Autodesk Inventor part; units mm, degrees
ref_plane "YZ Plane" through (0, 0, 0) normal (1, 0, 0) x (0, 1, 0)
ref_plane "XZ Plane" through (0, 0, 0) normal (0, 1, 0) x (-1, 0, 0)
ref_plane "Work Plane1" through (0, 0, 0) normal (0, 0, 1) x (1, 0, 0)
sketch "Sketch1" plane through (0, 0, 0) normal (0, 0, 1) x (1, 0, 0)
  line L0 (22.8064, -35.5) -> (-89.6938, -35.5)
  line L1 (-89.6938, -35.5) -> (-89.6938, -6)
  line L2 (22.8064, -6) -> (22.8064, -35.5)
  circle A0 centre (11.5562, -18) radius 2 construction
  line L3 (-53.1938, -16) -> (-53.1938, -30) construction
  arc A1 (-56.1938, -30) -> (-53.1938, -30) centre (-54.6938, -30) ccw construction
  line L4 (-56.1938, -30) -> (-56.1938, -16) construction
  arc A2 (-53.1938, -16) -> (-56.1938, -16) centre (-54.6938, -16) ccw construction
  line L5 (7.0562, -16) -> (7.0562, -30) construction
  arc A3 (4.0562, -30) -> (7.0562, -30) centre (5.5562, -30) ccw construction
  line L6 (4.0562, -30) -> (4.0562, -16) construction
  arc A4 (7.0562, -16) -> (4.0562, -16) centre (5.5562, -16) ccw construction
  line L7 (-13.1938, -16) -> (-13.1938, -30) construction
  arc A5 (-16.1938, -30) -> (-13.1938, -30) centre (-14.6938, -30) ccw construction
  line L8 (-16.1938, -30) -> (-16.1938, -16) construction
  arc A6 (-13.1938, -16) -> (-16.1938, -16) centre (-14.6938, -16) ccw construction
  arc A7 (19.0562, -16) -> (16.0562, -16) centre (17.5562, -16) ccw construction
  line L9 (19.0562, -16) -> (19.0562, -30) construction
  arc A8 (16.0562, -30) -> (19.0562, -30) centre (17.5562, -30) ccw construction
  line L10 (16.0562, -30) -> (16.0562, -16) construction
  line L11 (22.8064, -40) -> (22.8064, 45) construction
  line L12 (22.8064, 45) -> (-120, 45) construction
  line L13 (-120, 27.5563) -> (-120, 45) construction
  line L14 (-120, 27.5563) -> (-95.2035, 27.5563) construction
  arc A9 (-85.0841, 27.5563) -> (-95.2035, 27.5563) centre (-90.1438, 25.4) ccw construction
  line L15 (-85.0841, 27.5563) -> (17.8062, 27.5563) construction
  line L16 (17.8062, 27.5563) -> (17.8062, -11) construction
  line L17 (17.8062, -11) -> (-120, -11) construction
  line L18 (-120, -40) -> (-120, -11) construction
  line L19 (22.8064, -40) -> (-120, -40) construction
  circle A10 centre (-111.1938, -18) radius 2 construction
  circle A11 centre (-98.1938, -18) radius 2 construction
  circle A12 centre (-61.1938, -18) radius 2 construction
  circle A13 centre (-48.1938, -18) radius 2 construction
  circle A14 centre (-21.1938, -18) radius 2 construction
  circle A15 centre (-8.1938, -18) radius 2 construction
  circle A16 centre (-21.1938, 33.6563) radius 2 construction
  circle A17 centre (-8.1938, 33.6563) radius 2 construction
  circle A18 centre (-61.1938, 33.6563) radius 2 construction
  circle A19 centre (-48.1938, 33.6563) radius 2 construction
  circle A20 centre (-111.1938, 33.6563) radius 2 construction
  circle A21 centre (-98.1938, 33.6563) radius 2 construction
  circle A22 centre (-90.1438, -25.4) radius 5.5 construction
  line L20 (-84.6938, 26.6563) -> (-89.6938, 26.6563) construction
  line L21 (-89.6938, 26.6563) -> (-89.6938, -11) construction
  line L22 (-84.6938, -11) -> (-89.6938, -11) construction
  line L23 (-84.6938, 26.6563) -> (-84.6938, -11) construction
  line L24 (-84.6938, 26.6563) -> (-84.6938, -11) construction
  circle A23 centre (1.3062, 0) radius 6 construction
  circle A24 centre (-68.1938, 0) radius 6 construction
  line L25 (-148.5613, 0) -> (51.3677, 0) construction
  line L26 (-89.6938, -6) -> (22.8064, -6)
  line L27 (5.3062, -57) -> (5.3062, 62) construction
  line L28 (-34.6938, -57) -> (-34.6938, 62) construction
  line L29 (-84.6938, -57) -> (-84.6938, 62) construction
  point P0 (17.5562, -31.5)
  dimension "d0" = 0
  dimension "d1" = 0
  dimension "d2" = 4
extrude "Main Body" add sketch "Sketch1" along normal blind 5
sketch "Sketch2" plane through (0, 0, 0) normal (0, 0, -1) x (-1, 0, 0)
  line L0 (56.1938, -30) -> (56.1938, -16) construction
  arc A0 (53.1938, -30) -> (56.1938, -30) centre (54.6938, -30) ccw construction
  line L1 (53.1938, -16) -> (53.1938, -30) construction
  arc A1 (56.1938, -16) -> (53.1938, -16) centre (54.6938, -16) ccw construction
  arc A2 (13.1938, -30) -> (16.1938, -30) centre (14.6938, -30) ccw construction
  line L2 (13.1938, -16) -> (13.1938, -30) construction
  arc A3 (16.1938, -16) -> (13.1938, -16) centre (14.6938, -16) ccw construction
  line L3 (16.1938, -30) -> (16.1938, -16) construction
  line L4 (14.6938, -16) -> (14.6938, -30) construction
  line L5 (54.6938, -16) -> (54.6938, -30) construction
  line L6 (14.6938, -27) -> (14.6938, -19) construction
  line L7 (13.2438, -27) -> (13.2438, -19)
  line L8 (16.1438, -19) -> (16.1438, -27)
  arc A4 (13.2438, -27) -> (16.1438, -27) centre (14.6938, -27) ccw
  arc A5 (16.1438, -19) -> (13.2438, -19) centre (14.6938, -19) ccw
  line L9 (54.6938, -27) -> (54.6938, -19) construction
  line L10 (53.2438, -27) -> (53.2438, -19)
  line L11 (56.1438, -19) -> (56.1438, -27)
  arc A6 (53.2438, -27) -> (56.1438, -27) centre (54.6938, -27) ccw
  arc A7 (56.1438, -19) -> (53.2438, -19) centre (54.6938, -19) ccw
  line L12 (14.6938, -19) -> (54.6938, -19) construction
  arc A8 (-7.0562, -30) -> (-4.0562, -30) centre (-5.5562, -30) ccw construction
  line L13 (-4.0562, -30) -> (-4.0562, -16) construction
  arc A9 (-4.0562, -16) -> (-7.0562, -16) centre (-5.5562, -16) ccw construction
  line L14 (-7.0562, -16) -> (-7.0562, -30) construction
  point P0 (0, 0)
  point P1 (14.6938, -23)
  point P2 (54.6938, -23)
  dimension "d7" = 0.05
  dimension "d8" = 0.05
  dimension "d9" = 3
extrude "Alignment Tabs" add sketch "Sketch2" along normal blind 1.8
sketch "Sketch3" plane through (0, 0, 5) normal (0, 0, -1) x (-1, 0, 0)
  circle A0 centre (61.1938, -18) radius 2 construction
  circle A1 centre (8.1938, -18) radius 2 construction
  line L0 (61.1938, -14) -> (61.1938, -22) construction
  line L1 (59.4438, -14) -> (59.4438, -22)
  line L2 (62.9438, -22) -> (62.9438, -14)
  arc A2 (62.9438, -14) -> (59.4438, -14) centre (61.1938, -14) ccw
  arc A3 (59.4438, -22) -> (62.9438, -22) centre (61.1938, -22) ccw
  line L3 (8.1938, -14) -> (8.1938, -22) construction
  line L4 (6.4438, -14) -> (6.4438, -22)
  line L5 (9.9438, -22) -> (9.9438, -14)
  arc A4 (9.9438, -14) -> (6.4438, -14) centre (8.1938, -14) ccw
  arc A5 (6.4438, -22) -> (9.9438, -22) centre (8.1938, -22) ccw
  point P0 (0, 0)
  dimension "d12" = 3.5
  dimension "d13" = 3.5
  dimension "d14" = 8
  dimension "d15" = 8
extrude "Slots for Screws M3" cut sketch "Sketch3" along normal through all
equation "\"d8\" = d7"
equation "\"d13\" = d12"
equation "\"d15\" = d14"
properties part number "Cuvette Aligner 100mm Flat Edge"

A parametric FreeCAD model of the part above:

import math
import FreeCAD as App
import Part
import Sketcher
from FreeCAD import Vector
Q = App.Units.Quantity

doc = App.newDocument("Part")
body = doc.addObject("PartDesign::Body", "Body")

sketch1 = doc.addObject("Sketcher::SketchObject", "Sketch")
body.addObject(sketch1)
sketch1.AttachmentSupport = (doc.XY_Plane, [""])
sketch1.MapMode = "FlatFace"
sketch1.addGeometry(Part.LineSegment(Vector(-89.6938, -35.5, 0), Vector(22.8064, -35.5, 0)), False)
sketch1.addGeometry(Part.LineSegment(Vector(22.8064, -35.5, 0), Vector(22.8064, -6, 0)), False)
sketch1.addGeometry(Part.LineSegment(Vector(22.8064, -6, 0), Vector(-89.6938, -6, 0)), False)
sketch1.addGeometry(Part.LineSegment(Vector(-89.6938, -6, 0), Vector(-89.6938, -35.5, 0)), False)
sketch1.addConstraint(Sketcher.Constraint("Coincident", 0, 2, 1, 1))
sketch1.addConstraint(Sketcher.Constraint("Coincident", 1, 2, 2, 1))
sketch1.addConstraint(Sketcher.Constraint("Coincident", 2, 2, 3, 1))
sketch1.addConstraint(Sketcher.Constraint("Coincident", 3, 2, 0, 1))
sketch1.addConstraint(Sketcher.Constraint("Horizontal", 0))
sketch1.addConstraint(Sketcher.Constraint("Vertical", 1))
sketch1.addConstraint(Sketcher.Constraint("Horizontal", 2))
sketch1.addConstraint(Sketcher.Constraint("Vertical", 3))
sketch1.addConstraint(Sketcher.Constraint("DistanceY", 1, 1, 1, 2, Q("29.5 mm")))
sketch1.addConstraint(Sketcher.Constraint("DistanceY", 1, 2, -1, 1, Q("6 mm")))
sketch1.addConstraint(Sketcher.Constraint("DistanceX", 0, 1, 0, 2, Q("112.5002 mm")))
sketch1.addConstraint(Sketcher.Constraint("DistanceX", -1, 1, 0, 2, Q("22.8064 mm")))
pad1 = doc.addObject("PartDesign::Pad", "Pad")
body.addObject(pad1)
pad1.Profile = sketch1
pad1.Length = 5

sketch2 = doc.addObject("Sketcher::SketchObject", "Sketch001")
body.addObject(sketch2)
sketch2.AttachmentSupport = (doc.XY_Plane, [""])
sketch2.MapMode = "FlatFace"
sketch2.addGeometry(Part.LineSegment(Vector(-13.2438, -19, 0), Vector(-13.2438, -27, 0)), False)
sketch2.addGeometry(Part.ArcOfCircle(Part.Circle(Vector(-14.6938, -27, 0), Vector(0, 0, 1), 1.45), math.radians(180), math.radians(360)), False)
sketch2.addGeometry(Part.LineSegment(Vector(-16.1438, -27, 0), Vector(-16.1438, -19, 0)), False)
sketch2.addGeometry(Part.ArcOfCircle(Part.Circle(Vector(-14.6938, -19, 0), Vector(0, 0, 1), 1.45), math.radians(0), math.radians(180)), False)
sketch2.addGeometry(Part.LineSegment(Vector(-53.2438, -19, 0), Vector(-53.2438, -27, 0)), False)
sketch2.addGeometry(Part.ArcOfCircle(Part.Circle(Vector(-54.6938, -27, 0), Vector(0, 0, 1), 1.45), math.radians(180), math.radians(360)), False)
sketch2.addGeometry(Part.LineSegment(Vector(-56.1438, -27, 0), Vector(-56.1438, -19, 0)), False)
sketch2.addGeometry(Part.ArcOfCircle(Part.Circle(Vector(-54.6938, -19, 0), Vector(0, 0, 1), 1.45), math.radians(0), math.radians(180)), False)
sketch2.addConstraint(Sketcher.Constraint("Tangent", 0, 2, 1, 2))
sketch2.addConstraint(Sketcher.Constraint("Tangent", 1, 1, 2, 1))
sketch2.addConstraint(Sketcher.Constraint("Tangent", 2, 2, 3, 2))
sketch2.addConstraint(Sketcher.Constraint("Tangent", 3, 1, 0, 1))
sketch2.addConstraint(Sketcher.Constraint("Tangent", 4, 2, 5, 2))
sketch2.addConstraint(Sketcher.Constraint("Tangent", 5, 1, 6, 1))
sketch2.addConstraint(Sketcher.Constraint("Tangent", 6, 2, 7, 2))
sketch2.addConstraint(Sketcher.Constraint("Tangent", 7, 1, 4, 1))
sketch2.addConstraint(Sketcher.Constraint("Vertical", 0))
sketch2.addConstraint(Sketcher.Constraint("Vertical", 2))
sketch2.addConstraint(Sketcher.Constraint("Vertical", 4))
sketch2.addConstraint(Sketcher.Constraint("Vertical", 6))
sketch2.addConstraint(Sketcher.Constraint("Equal", 3, 5))
sketch2.addConstraint(Sketcher.Constraint("Horizontal", 1, 3, 5, 3))
sketch2.addConstraint(Sketcher.Constraint("Horizontal", 3, 3, 7, 3))
sketch2.addConstraint(Sketcher.Constraint("DistanceY", 0, 2, 0, 1, Q("8 mm")))
sketch2.addConstraint(Sketcher.Constraint("Radius", 1, Q("1.45 mm")))
sketch2.addConstraint(Sketcher.Constraint("DistanceY", 1, 3, -1, 1, Q("27 mm")))
sketch2.addConstraint(Sketcher.Constraint("DistanceX", 5, 3, 1, 3, Q("40 mm")))
sketch2.addConstraint(Sketcher.Constraint("DistanceX", 1, 3, -1, 1, Q("14.6938 mm")))
pad2 = doc.addObject("PartDesign::Pad", "Pad001")
body.addObject(pad2)
pad2.Profile = sketch2
pad2.Length = 1.8
pad2.Reversed = True

sketch3 = doc.addObject("Sketcher::SketchObject", "Sketch002")
body.addObject(sketch3)
sketch3.AttachmentSupport = (doc.XY_Plane, [""])
sketch3.MapMode = "FlatFace"
sketch3.AttachmentOffset = App.Placement(Vector(0, 0, 5), App.Rotation())
sketch3.addGeometry(Part.ArcOfCircle(Part.Circle(Vector(-61.1938, -14, 0), Vector(0, 0, 1), 1.75), math.radians(0), math.radians(180)), False)
sketch3.addGeometry(Part.LineSegment(Vector(-59.4438, -14, 0), Vector(-59.4438, -22, 0)), False)
sketch3.addGeometry(Part.ArcOfCircle(Part.Circle(Vector(-61.1938, -22, 0), Vector(0, 0, 1), 1.75), math.radians(180), math.radians(360)), False)
sketch3.addGeometry(Part.LineSegment(Vector(-62.9438, -22, 0), Vector(-62.9438, -14, 0)), False)
sketch3.addGeometry(Part.ArcOfCircle(Part.Circle(Vector(-8.1938, -14, 0), Vector(0, 0, 1), 1.75), math.radians(0), math.radians(180)), False)
sketch3.addGeometry(Part.LineSegment(Vector(-6.4438, -14, 0), Vector(-6.4438, -22, 0)), False)
sketch3.addGeometry(Part.ArcOfCircle(Part.Circle(Vector(-8.1938, -22, 0), Vector(0, 0, 1), 1.75), math.radians(180), math.radians(360)), False)
sketch3.addGeometry(Part.LineSegment(Vector(-9.9438, -22, 0), Vector(-9.9438, -14, 0)), False)
sketch3.addConstraint(Sketcher.Constraint("Tangent", 0, 1, 1, 1))
sketch3.addConstraint(Sketcher.Constraint("Tangent", 1, 2, 2, 2))
sketch3.addConstraint(Sketcher.Constraint("Tangent", 2, 1, 3, 1))
sketch3.addConstraint(Sketcher.Constraint("Tangent", 3, 2, 0, 2))
sketch3.addConstraint(Sketcher.Constraint("Tangent", 4, 1, 5, 1))
sketch3.addConstraint(Sketcher.Constraint("Tangent", 5, 2, 6, 2))
sketch3.addConstraint(Sketcher.Constraint("Tangent", 6, 1, 7, 1))
sketch3.addConstraint(Sketcher.Constraint("Tangent", 7, 2, 4, 2))
sketch3.addConstraint(Sketcher.Constraint("Vertical", 1))
sketch3.addConstraint(Sketcher.Constraint("Vertical", 3))
sketch3.addConstraint(Sketcher.Constraint("Vertical", 5))
sketch3.addConstraint(Sketcher.Constraint("Vertical", 7))
sketch3.addConstraint(Sketcher.Constraint("Equal", 2, 4))
sketch3.addConstraint(Sketcher.Constraint("Horizontal", 0, 3, 4, 3))
sketch3.addConstraint(Sketcher.Constraint("Horizontal", 2, 3, 6, 3))
sketch3.addConstraint(Sketcher.Constraint("DistanceY", 1, 2, 1, 1, Q("8 mm")))
sketch3.addConstraint(Sketcher.Constraint("Radius", 0, Q("1.75 mm")))
sketch3.addConstraint(Sketcher.Constraint("DistanceY", 0, 3, -1, 1, Q("14 mm")))
sketch3.addConstraint(Sketcher.Constraint("DistanceX", 0, 3, 4, 3, Q("53 mm")))
sketch3.addConstraint(Sketcher.Constraint("DistanceX", 0, 3, -1, 1, Q("61.1938 mm")))
pocket1 = doc.addObject("PartDesign::Pocket", "Pocket")
body.addObject(pocket1)
pocket1.Profile = sketch3
pocket1.Type = "ThroughAll"

doc.recompute()
